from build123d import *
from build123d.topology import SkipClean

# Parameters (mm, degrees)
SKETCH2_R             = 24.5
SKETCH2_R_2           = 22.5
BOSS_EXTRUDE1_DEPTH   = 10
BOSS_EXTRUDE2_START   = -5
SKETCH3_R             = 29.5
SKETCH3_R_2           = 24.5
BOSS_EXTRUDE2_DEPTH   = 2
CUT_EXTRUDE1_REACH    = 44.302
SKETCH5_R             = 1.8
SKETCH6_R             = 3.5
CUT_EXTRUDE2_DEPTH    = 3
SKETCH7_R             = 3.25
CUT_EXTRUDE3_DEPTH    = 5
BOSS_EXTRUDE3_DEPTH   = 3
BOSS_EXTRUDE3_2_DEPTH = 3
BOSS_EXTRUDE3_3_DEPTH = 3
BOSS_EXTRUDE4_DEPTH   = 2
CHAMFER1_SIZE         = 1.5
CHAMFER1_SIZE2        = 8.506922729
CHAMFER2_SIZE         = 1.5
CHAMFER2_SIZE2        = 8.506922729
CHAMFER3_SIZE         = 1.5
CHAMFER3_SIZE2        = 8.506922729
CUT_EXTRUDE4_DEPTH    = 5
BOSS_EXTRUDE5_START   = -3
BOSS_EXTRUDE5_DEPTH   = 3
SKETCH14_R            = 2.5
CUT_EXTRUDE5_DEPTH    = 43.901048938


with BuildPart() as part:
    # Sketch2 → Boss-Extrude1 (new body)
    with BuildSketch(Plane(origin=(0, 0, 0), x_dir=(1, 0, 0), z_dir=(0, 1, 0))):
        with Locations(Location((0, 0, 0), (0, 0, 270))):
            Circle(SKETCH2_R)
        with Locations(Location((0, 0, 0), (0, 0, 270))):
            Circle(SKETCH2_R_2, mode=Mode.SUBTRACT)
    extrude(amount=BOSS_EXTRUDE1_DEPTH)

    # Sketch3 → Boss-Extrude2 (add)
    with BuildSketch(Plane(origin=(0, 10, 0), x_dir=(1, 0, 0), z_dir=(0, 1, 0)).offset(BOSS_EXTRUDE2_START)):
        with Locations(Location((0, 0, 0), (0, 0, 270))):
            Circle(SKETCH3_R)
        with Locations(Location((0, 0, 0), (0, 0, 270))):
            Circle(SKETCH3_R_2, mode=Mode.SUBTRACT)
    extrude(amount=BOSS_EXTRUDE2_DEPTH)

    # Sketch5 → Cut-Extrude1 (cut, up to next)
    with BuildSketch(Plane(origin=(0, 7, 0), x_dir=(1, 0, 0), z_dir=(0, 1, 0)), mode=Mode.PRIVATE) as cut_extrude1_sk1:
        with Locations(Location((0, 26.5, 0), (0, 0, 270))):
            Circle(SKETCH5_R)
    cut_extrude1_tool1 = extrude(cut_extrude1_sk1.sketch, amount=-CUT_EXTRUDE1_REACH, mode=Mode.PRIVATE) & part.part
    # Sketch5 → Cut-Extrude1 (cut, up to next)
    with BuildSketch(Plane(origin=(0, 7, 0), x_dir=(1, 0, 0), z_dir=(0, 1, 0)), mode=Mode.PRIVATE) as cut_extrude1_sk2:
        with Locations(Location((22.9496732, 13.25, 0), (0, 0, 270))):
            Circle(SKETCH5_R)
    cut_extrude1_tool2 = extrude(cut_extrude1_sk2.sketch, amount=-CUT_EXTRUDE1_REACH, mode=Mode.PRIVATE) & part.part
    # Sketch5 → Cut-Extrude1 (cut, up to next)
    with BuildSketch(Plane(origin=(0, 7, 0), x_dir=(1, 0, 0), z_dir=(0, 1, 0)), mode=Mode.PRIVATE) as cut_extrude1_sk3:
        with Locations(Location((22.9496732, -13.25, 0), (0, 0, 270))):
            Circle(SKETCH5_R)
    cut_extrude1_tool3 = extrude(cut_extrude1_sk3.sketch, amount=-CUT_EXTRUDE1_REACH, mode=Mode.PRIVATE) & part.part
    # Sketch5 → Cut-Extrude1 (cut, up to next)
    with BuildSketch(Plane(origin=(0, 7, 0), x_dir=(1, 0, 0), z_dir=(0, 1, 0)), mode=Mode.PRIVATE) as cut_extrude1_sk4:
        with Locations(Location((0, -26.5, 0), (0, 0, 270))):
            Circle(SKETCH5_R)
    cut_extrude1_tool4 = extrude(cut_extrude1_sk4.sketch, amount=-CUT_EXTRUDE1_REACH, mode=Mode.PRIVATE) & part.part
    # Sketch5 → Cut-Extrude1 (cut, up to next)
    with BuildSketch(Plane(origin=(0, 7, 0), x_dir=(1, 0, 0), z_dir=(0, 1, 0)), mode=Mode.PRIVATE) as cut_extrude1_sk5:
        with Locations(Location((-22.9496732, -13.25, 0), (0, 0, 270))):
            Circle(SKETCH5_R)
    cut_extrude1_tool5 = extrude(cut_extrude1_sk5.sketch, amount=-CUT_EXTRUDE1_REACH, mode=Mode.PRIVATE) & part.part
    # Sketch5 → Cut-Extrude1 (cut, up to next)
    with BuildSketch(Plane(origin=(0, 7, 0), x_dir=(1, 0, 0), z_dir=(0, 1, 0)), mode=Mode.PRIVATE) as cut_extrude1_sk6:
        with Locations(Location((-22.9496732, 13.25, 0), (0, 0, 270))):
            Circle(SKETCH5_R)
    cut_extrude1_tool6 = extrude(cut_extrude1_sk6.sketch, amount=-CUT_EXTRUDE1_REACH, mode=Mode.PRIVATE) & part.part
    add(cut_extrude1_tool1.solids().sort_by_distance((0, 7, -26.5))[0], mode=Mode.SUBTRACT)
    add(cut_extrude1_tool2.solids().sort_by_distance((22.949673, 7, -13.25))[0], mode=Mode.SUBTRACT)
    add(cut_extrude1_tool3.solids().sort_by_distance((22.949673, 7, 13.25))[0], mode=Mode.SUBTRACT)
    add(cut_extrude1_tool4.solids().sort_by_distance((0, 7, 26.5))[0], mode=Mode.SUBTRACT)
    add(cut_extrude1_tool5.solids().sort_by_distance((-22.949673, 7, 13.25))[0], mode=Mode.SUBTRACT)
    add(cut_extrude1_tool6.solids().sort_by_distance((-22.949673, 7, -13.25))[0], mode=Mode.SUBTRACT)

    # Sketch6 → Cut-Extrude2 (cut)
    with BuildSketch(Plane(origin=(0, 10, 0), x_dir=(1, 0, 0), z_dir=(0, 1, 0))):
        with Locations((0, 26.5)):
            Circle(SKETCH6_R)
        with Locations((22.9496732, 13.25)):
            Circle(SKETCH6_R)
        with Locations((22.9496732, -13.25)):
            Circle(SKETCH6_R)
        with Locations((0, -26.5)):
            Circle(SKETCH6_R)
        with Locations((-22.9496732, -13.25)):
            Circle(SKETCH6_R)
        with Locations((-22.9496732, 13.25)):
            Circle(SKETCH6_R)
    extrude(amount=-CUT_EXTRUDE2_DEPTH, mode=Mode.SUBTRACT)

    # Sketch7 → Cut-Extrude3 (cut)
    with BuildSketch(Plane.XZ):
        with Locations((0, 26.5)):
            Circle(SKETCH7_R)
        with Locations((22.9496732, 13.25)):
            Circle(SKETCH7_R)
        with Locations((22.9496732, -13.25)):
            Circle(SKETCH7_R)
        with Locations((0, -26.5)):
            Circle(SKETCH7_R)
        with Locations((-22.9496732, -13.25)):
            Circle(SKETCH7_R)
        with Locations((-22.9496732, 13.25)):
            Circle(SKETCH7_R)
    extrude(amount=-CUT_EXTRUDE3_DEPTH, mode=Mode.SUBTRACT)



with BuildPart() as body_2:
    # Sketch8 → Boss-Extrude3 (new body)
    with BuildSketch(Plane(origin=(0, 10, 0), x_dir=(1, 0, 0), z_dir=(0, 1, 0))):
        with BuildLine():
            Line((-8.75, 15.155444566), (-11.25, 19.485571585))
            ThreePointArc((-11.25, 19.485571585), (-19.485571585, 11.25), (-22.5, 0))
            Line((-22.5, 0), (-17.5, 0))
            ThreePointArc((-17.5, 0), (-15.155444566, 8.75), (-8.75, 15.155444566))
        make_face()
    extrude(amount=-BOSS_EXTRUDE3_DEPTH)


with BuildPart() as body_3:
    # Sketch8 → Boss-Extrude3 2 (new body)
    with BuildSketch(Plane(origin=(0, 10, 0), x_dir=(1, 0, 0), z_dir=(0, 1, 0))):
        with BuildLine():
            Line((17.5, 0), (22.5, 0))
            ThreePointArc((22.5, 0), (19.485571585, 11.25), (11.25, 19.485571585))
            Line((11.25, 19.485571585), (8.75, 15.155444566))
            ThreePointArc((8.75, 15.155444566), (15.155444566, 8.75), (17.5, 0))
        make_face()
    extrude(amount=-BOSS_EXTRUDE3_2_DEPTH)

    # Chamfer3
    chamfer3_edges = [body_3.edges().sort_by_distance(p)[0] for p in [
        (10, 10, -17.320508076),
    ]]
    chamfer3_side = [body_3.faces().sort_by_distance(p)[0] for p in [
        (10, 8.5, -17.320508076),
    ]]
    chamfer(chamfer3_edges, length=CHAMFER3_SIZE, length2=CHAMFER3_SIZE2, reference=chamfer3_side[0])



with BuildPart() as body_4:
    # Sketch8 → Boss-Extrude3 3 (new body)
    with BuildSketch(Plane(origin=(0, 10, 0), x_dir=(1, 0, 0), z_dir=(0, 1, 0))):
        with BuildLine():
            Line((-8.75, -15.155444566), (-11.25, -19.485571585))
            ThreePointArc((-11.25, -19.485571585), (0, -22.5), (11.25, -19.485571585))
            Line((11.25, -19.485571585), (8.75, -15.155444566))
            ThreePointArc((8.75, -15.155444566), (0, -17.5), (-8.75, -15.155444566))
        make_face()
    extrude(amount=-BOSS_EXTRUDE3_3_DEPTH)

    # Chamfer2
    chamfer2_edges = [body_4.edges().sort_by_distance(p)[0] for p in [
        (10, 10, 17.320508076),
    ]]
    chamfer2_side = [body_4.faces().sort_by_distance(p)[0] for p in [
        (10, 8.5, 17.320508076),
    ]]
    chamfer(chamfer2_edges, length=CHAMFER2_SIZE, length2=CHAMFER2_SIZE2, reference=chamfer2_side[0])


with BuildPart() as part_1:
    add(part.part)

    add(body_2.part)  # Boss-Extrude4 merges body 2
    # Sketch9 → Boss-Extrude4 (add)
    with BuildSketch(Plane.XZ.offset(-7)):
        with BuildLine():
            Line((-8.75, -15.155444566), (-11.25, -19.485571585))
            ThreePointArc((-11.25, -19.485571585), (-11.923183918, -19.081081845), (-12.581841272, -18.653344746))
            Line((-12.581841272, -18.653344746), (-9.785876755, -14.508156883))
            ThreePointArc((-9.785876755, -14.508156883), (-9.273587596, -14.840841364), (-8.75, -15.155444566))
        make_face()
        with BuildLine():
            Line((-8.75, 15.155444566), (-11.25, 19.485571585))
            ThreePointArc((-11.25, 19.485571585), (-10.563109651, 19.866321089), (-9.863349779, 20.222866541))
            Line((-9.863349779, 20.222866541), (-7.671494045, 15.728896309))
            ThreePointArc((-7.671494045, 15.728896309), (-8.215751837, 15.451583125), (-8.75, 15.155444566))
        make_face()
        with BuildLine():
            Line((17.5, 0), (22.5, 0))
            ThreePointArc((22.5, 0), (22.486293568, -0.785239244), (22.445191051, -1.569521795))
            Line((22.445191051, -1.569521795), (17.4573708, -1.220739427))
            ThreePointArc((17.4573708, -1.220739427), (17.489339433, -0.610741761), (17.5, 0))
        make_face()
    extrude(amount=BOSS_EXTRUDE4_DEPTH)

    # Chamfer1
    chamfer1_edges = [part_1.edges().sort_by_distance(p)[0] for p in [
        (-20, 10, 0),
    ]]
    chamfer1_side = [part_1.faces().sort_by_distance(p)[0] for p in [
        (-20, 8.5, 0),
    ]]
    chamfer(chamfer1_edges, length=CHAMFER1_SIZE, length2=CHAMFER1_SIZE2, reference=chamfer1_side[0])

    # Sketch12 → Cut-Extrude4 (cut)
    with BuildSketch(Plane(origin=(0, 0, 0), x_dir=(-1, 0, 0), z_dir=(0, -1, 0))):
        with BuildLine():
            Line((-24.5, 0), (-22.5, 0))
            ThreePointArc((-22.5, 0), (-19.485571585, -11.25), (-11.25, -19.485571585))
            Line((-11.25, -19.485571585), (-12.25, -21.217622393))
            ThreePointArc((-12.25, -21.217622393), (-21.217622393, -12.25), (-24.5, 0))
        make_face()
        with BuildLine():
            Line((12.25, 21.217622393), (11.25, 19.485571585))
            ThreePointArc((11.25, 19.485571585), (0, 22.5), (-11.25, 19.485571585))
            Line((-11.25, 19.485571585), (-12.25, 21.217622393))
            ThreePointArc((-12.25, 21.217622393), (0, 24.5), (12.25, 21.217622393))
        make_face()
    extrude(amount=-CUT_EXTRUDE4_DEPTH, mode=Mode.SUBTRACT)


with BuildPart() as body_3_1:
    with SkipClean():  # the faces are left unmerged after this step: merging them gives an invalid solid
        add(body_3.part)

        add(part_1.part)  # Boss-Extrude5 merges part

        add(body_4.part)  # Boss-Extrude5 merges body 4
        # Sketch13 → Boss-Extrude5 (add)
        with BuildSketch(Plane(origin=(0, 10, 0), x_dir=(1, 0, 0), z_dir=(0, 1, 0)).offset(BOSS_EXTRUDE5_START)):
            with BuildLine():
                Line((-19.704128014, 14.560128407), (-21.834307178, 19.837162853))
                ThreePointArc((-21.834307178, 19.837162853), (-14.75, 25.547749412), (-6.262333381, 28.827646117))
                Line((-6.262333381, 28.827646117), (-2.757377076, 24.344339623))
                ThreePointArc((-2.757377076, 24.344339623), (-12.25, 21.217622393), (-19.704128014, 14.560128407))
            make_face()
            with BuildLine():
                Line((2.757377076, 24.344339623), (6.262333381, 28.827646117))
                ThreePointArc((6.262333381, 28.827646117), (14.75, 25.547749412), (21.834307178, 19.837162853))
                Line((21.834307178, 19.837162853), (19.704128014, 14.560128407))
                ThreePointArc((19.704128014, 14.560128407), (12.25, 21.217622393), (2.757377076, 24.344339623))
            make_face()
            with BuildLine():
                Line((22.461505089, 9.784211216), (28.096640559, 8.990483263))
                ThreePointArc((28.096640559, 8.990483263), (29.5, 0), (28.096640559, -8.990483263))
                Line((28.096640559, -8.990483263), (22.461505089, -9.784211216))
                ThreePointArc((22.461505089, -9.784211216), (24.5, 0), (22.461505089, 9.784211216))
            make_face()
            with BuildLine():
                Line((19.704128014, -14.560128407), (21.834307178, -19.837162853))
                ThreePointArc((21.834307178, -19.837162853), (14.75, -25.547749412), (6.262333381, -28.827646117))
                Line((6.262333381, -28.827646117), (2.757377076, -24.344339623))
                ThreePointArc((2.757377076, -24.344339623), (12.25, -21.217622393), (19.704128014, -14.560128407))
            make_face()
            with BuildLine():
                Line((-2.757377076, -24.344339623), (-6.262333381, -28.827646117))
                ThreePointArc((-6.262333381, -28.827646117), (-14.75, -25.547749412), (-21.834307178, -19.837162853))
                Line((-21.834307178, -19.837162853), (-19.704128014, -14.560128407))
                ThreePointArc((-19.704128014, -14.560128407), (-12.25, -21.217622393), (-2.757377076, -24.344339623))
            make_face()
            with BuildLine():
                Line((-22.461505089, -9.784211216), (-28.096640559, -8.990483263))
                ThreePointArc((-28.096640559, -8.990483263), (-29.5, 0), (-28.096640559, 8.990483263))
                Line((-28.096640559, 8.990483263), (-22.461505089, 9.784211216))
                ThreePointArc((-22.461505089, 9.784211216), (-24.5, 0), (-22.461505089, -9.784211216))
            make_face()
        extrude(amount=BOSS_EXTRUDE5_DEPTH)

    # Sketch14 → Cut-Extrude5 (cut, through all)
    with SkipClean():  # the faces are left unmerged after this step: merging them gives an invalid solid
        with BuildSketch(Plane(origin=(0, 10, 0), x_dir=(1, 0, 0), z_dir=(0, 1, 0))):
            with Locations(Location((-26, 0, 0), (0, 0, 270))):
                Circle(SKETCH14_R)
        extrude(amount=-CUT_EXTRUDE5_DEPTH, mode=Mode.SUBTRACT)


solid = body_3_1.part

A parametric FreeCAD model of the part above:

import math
import FreeCAD as App
import Part
import Sketcher
Q = App.Units.Quantity


def edges_at(feature, points):
    """Names of the edges that pass closest to the given points."""
    edges = feature.Shape.Edges
    near = lambda p: min(range(len(edges)), key=lambda i: edges[i].distToShape(Part.Vertex(*p))[0])
    return sorted({f"Edge{near(p) + 1}" for p in points})

doc = App.newDocument("Part")
body = doc.addObject("PartDesign::Body", "Body")

# Sketch on XZ plane
sketch1 = body.newObject("Sketcher::SketchObject", "Sketch")
sketch1.AttachmentSupport = (doc.getObject("XZ_Plane"), [""])
sketch1.MapMode = "FlatFace"
sketch1.addGeometry([
    Part.Circle(App.Vector(0, 0, 0), App.Vector(0, 0, 1), 24),
    Part.Circle(App.Vector(0, 0, 0), App.Vector(0, 0, 1), 22),
], False)
sketch1.addConstraint([
    Sketcher.Constraint("Coincident", 0, 3, -1, 1),
    Sketcher.Constraint("Coincident", 1, 3, -1, 1),
    Sketcher.Constraint("Diameter", 0, Q("49 mm")),
    Sketcher.Constraint("Diameter", 1, Q("45 mm")),
])
pad1 = body.newObject("PartDesign::Pad", "Pad")
pad1.Profile = sketch1
pad1.Length = 10
pad1.Reversed = True

# Sketch on XZ plane
sketch2 = body.newObject("Sketcher::SketchObject", "Sketch001")
sketch2.AttachmentSupport = (doc.getObject("XZ_Plane"), [""])
sketch2.MapMode = "FlatFace"
sketch2.AttachmentOffset = App.Placement(App.Vector(0, 0, -5), App.Rotation())
sketch2.addGeometry([
    Part.Circle(App.Vector(0, 0, 0), App.Vector(0, 0, 1), 30),
    Part.Circle(App.Vector(0, 0, 0), App.Vector(0, 0, 1), 24),
], False)
sketch2.addConstraint([
    Sketcher.Constraint("Coincident", 0, 3, -1, 1),
    Sketcher.Constraint("Coincident", 1, 3, -1, 1),
    Sketcher.Constraint("Diameter", 0, Q("59 mm")),
    Sketcher.Constraint("Diameter", 1, Q("49 mm")),
])
pad2 = body.newObject("PartDesign::Pad", "Pad001")
pad2.Profile = sketch2
pad2.Length = 2
pad2.Reversed = True

# Sketch on XZ plane
sketch3 = body.newObject("Sketcher::SketchObject", "Sketch002")
sketch3.AttachmentSupport = (doc.getObject("XZ_Plane"), [""])
sketch3.MapMode = "FlatFace"
sketch3.AttachmentOffset = App.Placement(App.Vector(0, 0, -7), App.Rotation())
sketch3.addGeometry(Part.Circle(App.Vector(0, -26.5, 0), App.Vector(0, 0, 1), 1.8), False)
sketch3.addConstraint([
    Sketcher.Constraint("PointOnObject", 0, 3, -2),
    Sketcher.Constraint("Diameter", 0, Q("3.6 mm")),
    Sketcher.Constraint("DistanceY", 0, 3, -1, 1, Q("26.5 mm")),
])
pocket1 = body.newObject("PartDesign::Pocket", "Pocket")
pocket1.Profile = sketch3
pocket1.Type = "UpToFirst"
pocket1.Reversed = True

# Sketch on XZ plane
sketch4 = body.newObject("Sketcher::SketchObject", "Sketch003")
sketch4.AttachmentSupport = (doc.getObject("XZ_Plane"), [""])
sketch4.MapMode = "FlatFace"
sketch4.AttachmentOffset = App.Placement(App.Vector(0, 0, -7), App.Rotation())
sketch4.addGeometry(Part.Circle(App.Vector(22.9, -13.2, 0), App.Vector(0, 0, 1), 1.8), False)
sketch4.addConstraint([
    Sketcher.Constraint("Diameter", 0, Q("3.6 mm")),
    Sketcher.Constraint("DistanceY", 0, 3, -1, 1, Q("13.25 mm")),
    Sketcher.Constraint("DistanceX", -1, 1, 0, 3, Q("22.949673 mm")),
])
pocket2 = body.newObject("PartDesign::Pocket", "Pocket001")
pocket2.Profile = sketch4
pocket2.Type = "UpToFirst"
pocket2.Reversed = True

# Sketch on XZ plane
sketch5 = body.newObject("Sketcher::SketchObject", "Sketch004")
sketch5.AttachmentSupport = (doc.getObject("XZ_Plane"), [""])
sketch5.MapMode = "FlatFace"
sketch5.AttachmentOffset = App.Placement(App.Vector(0, 0, -7), App.Rotation())
sketch5.addGeometry(Part.Circle(App.Vector(22.9, 13.2, 0), App.Vector(0, 0, 1), 1.8), False)
sketch5.addConstraint([
    Sketcher.Constraint("Diameter", 0, Q("3.6 mm")),
    Sketcher.Constraint("DistanceY", -1, 1, 0, 3, Q("13.25 mm")),
    Sketcher.Constraint("DistanceX", -1, 1, 0, 3, Q("22.949673 mm")),
])
pocket3 = body.newObject("PartDesign::Pocket", "Pocket002")
pocket3.Profile = sketch5
pocket3.Type = "UpToFirst"
pocket3.Reversed = True

# Sketch on XZ plane
sketch6 = body.newObject("Sketcher::SketchObject", "Sketch005")
sketch6.AttachmentSupport = (doc.getObject("XZ_Plane"), [""])
sketch6.MapMode = "FlatFace"
sketch6.AttachmentOffset = App.Placement(App.Vector(0, 0, -7), App.Rotation())
sketch6.addGeometry(Part.Circle(App.Vector(0, 26.5, 0), App.Vector(0, 0, 1), 1.8), False)
sketch6.addConstraint([
    Sketcher.Constraint("PointOnObject", 0, 3, -2),
    Sketcher.Constraint("Diameter", 0, Q("3.6 mm")),
    Sketcher.Constraint("DistanceY", -1, 1, 0, 3, Q("26.5 mm")),
])
pocket4 = body.newObject("PartDesign::Pocket", "Pocket003")
pocket4.Profile = sketch6
pocket4.Type = "UpToFirst"
pocket4.Reversed = True

# Sketch on XZ plane
sketch7 = body.newObject("Sketcher::SketchObject", "Sketch006")
sketch7.AttachmentSupport = (doc.getObject("XZ_Plane"), [""])
sketch7.MapMode = "FlatFace"
sketch7.AttachmentOffset = App.Placement(App.Vector(0, 0, -7), App.Rotation())
sketch7.addGeometry(Part.Circle(App.Vector(-22.9, 13.2, 0), App.Vector(0, 0, 1), 1.8), False)
sketch7.addConstraint([
    Sketcher.Constraint("Diameter", 0, Q("3.6 mm")),
    Sketcher.Constraint("DistanceY", -1, 1, 0, 3, Q("13.25 mm")),
    Sketcher.Constraint("DistanceX", 0, 3, -1, 1, Q("22.949673 mm")),
])
pocket5 = body.newObject("PartDesign::Pocket", "Pocket004")
pocket5.Profile = sketch7
pocket5.Type = "UpToFirst"
pocket5.Reversed = True

# Sketch on XZ plane
sketch8 = body.newObject("Sketcher::SketchObject", "Sketch007")
sketch8.AttachmentSupport = (doc.getObject("XZ_Plane"), [""])
sketch8.MapMode = "FlatFace"
sketch8.AttachmentOffset = App.Placement(App.Vector(0, 0, -7), App.Rotation())
sketch8.addGeometry(Part.Circle(App.Vector(-22.9, -13.2, 0), App.Vector(0, 0, 1), 1.8), False)
sketch8.addConstraint([
    Sketcher.Constraint("Diameter", 0, Q("3.6 mm")),
    Sketcher.Constraint("DistanceY", 0, 3, -1, 1, Q("13.25 mm")),
    Sketcher.Constraint("DistanceX", 0, 3, -1, 1, Q("22.949673 mm")),
])
pocket6 = body.newObject("PartDesign::Pocket", "Pocket005")
pocket6.Profile = sketch8
pocket6.Type = "UpToFirst"
pocket6.Reversed = True

# Sketch on XZ plane
sketch9 = body.newObject("Sketcher::SketchObject", "Sketch008")
sketch9.AttachmentSupport = (doc.getObject("XZ_Plane"), [""])
sketch9.MapMode = "FlatFace"
sketch9.AttachmentOffset = App.Placement(App.Vector(0, 0, -10), App.Rotation())
sketch9.addGeometry([
    Part.Circle(App.Vector(0, -26.5, 0), App.Vector(0, 0, 1), 3.5),  # 0
    Part.Circle(App.Vector(22.9, -13.2, 0), App.Vector(0, 0, 1), 3.5),  # 1
    Part.Circle(App.Vector(22.9, 13.2, 0), App.Vector(0, 0, 1), 3.5),  # 2
    Part.Circle(App.Vector(0, 26.5, 0), App.Vector(0, 0, 1), 3.5),  # 3
    Part.Circle(App.Vector(-22.9, 13.2, 0), App.Vector(0, 0, 1), 3.5),  # 4
    Part.Circle(App.Vector(-22.9, -13.2, 0), App.Vector(0, 0, 1), 3.5),  # 5
], False)
sketch9.addConstraint([
    Sketcher.Constraint("Equal", 0, 1),
    Sketcher.Constraint("Equal", 1, 2),
    Sketcher.Constraint("Equal", 2, 3),
    Sketcher.Constraint("Equal", 3, 4),
    Sketcher.Constraint("Equal", 4, 5),
    Sketcher.Constraint("Symmetric", 0, 3, 3, 3, -1, 1),
    Sketcher.Constraint("Symmetric", 1, 3, 4, 3, -1, 1),
    Sketcher.Constraint("Symmetric", 2, 3, 5, 3, -1, 1),
    Sketcher.Constraint("Symmetric", 2, 3, 4, 3, -2),
    Sketcher.Constraint("PointOnObject", 0, 3, -2),
    Sketcher.Constraint("Diameter", 0, Q("7 mm")),
    Sketcher.Constraint("DistanceY", 0, 3, 3, 3, Q("53 mm")),
    Sketcher.Constraint("DistanceY", 1, 3, 2, 3, Q("26.5 mm")),
    Sketcher.Constraint("DistanceX", -1, 1, 1, 3, Q("22.949673 mm")),
])
pocket7 = body.newObject("PartDesign::Pocket", "Pocket006")
pocket7.Profile = sketch9
pocket7.Length = 3
pocket7.Reversed = True

# Sketch on XZ plane
sketch10 = body.newObject("Sketcher::SketchObject", "Sketch009")
sketch10.AttachmentSupport = (doc.getObject("XZ_Plane"), [""])
sketch10.MapMode = "FlatFace"
sketch10.addGeometry([
    Part.Circle(App.Vector(0, 26.5, 0), App.Vector(0, 0, 1), 3.2),  # 0
    Part.Circle(App.Vector(22.9, 13.2, 0), App.Vector(0, 0, 1), 3.2),  # 1
    Part.Circle(App.Vector(22.9, -13.2, 0), App.Vector(0, 0, 1), 3.2),  # 2
    Part.Circle(App.Vector(0, -26.5, 0), App.Vector(0, 0, 1), 3.2),  # 3
    Part.Circle(App.Vector(-22.9, -13.2, 0), App.Vector(0, 0, 1), 3.2),  # 4
    Part.Circle(App.Vector(-22.9, 13.2, 0), App.Vector(0, 0, 1), 3.2),  # 5
], False)
sketch10.addConstraint([
    Sketcher.Constraint("Equal", 0, 1),
    Sketcher.Constraint("Equal", 1, 2),
    Sketcher.Constraint("Equal", 2, 3),
    Sketcher.Constraint("Equal", 3, 4),
    Sketcher.Constraint("Equal", 4, 5),
    Sketcher.Constraint("Symmetric", 0, 3, 3, 3, -1, 1),
    Sketcher.Constraint("Symmetric", 1, 3, 4, 3, -1, 1),
    Sketcher.Constraint("Symmetric", 2, 3, 5, 3, -1, 1),
    Sketcher.Constraint("Symmetric", 2, 3, 4, 3, -2),
    Sketcher.Constraint("PointOnObject", 0, 3, -2),
    Sketcher.Constraint("Diameter", 0, Q("6.5 mm")),
    Sketcher.Constraint("DistanceY", 3, 3, 0, 3, Q("53 mm")),
    Sketcher.Constraint("DistanceY", 2, 3, 1, 3, Q("26.5 mm")),
    Sketcher.Constraint("DistanceX", -1, 1, 1, 3, Q("22.949673 mm")),
])
pocket8 = body.newObject("PartDesign::Pocket", "Pocket007")
pocket8.Profile = sketch10
pocket8.Length = 5
body2 = doc.addObject("PartDesign::Body", "Body001")

# Sketch on XZ plane
sketch11 = body2.newObject("Sketcher::SketchObject", "Sketch010")
sketch11.AttachmentSupport = (doc.getObject("XZ_Plane001"), [""])
sketch11.MapMode = "FlatFace"
sketch11.AttachmentOffset = App.Placement(App.Vector(0, 0, -10), App.Rotation())
sketch11.addGeometry([
    Part.LineSegment(App.Vector(-9, -15, 0), App.Vector(-11, -19, 0)),
    Part.ArcOfCircle(Part.Circle(App.Vector(0, 0, 0), App.Vector(0, 0, 1), 22), math.radians(180), math.radians(240)),
    Part.LineSegment(App.Vector(-22, 0, 0), App.Vector(-18, 0, 0)),
    Part.ArcOfCircle(Part.Circle(App.Vector(0, 0, 0), App.Vector(0, 0, 1), 18), math.radians(-180), math.radians(-120)),
], False)
sketch11.addConstraint([
    Sketcher.Constraint("Coincident", 0, 2, 1, 2),
    Sketcher.Constraint("Coincident", 1, 1, 2, 1),
    Sketcher.Constraint("Coincident", 2, 2, 3, 1),
    Sketcher.Constraint("Coincident", 3, 2, 0, 1),
    Sketcher.Constraint("Horizontal", 2),
    Sketcher.Constraint("Coincident", 1, 3, -1, 1),
    Sketcher.Constraint("Coincident", 3, 3, -1, 1),
    Sketcher.Constraint("PointOnObject", 1, 1, -1),
    Sketcher.Constraint("Radius", 1, Q("22.5 mm")),
    Sketcher.Constraint("Radius", 3, Q("17.5 mm")),
    Sketcher.Constraint("Angle", 0, Q("-120 deg")),
    Sketcher.Constraint("DistanceX", 0, 2, -1, 1, Q("11.25 mm")),
])
pad3 = body2.newObject("PartDesign::Pad", "Pad002")
pad3.Profile = sketch11
pad3.Length = 3
body3 = doc.addObject("PartDesign::Body", "Body002")

# Sketch on XZ plane
sketch12 = body3.newObject("Sketcher::SketchObject", "Sketch011")
sketch12.AttachmentSupport = (doc.getObject("XZ_Plane002"), [""])
sketch12.MapMode = "FlatFace"
sketch12.AttachmentOffset = App.Placement(App.Vector(0, 0, -10), App.Rotation())
sketch12.addGeometry([
    Part.LineSegment(App.Vector(18, 0, 0), App.Vector(22, 0, 0)),
    Part.ArcOfCircle(Part.Circle(App.Vector(0, 0, 0), App.Vector(0, 0, 1), 22), math.radians(-60), math.radians(0)),
    Part.LineSegment(App.Vector(11, -19, 0), App.Vector(9, -15, 0)),
    Part.ArcOfCircle(Part.Circle(App.Vector(0, 0, 0), App.Vector(0, 0, 1), 18), math.radians(-60), math.radians(0)),
], False)
sketch12.addConstraint([
    Sketcher.Constraint("Coincident", 0, 2, 1, 2),
    Sketcher.Constraint("Coincident", 1, 1, 2, 1),
    Sketcher.Constraint("Coincident", 2, 2, 3, 1),
    Sketcher.Constraint("Coincident", 3, 2, 0, 1),
    Sketcher.Constraint("Horizontal", 0),
    Sketcher.Constraint("Coincident", 1, 3, -1, 1),
    Sketcher.Constraint("Coincident", 3, 3, -1, 1),
    Sketcher.Constraint("PointOnObject", 0, 2, -1),
    Sketcher.Constraint("Radius", 1, Q("22.5 mm")),
    Sketcher.Constraint("Radius", 3, Q("17.5 mm")),
    Sketcher.Constraint("Angle", 2, Q("120 deg")),
    Sketcher.Constraint("DistanceX", -1, 1, 1, 1, Q("11.25 mm")),
])
pad4 = body3.newObject("PartDesign::Pad", "Pad003")
pad4.Profile = sketch12
pad4.Length = 3
doc.recompute()

chamfer = body3.newObject("PartDesign::Chamfer", "Chamfer")
chamfer.Base = (pad4, edges_at(pad4, [(10, 10, -17.321)]))
chamfer.ChamferType = "Two distances"
chamfer.Size = 1.5
chamfer.Size2 = 8.506923
body4 = doc.addObject("PartDesign::Body", "Body003")

# Sketch on XZ plane
sketch13 = body4.newObject("Sketcher::SketchObject", "Sketch012")
sketch13.AttachmentSupport = (doc.getObject("XZ_Plane003"), [""])
sketch13.MapMode = "FlatFace"
sketch13.AttachmentOffset = App.Placement(App.Vector(0, 0, -10), App.Rotation())
sketch13.addGeometry([
    Part.LineSegment(App.Vector(-9, 15, 0), App.Vector(-11, 19, 0)),
    Part.ArcOfCircle(Part.Circle(App.Vector(0, 0, 0), App.Vector(0, 0, 1), 22), math.radians(60), math.radians(120)),
    Part.LineSegment(App.Vector(11, 19, 0), App.Vector(9, 15, 0)),
    Part.ArcOfCircle(Part.Circle(App.Vector(0, 0, 0), App.Vector(0, 0, 1), 17), math.radians(60), math.radians(120)),
], False)
sketch13.addConstraint([
    Sketcher.Constraint("Coincident", 0, 2, 1, 2),
    Sketcher.Constraint("Coincident", 1, 1, 2, 1),
    Sketcher.Constraint("Coincident", 2, 2, 3, 1),
    Sketcher.Constraint("Coincident", 3, 2, 0, 1),
    Sketcher.Constraint("Coincident", 1, 3, -1, 1),
    Sketcher.Constraint("Coincident", 3, 3, -1, 1),
    Sketcher.Constraint("Horizontal", 0, 2, 1, 1),
    Sketcher.Constraint("Horizontal", 2, 2, 3, 2),
    Sketcher.Constraint("Radius", 1, Q("22.5 mm")),
    Sketcher.Constraint("Radius", 3, Q("17.5 mm")),
    Sketcher.Constraint("Angle", 0, Q("120 deg")),
    Sketcher.Constraint("DistanceX", 0, 2, 2, 2, Q("20 mm")),
])
pad5 = body4.newObject("PartDesign::Pad", "Pad004")
pad5.Profile = sketch13
pad5.Length = 3
doc.recompute()

chamfer2 = body4.newObject("PartDesign::Chamfer", "Chamfer001")
chamfer2.Base = (pad5, edges_at(pad5, [(10, 10, 17.321)]))
chamfer2.ChamferType = "Two distances"
chamfer2.Size = 1.5
chamfer2.Size2 = 8.506923
doc.recompute()

boolean = body.newObject("PartDesign::Boolean", "Boolean")
boolean.Type = "Fuse"
boolean.addObjects([body2])

# Sketch on XZ plane
sketch14 = body.newObject("Sketcher::SketchObject", "Sketch013")
sketch14.AttachmentSupport = (doc.getObject("XZ_Plane"), [""])
sketch14.MapMode = "FlatFace"
sketch14.AttachmentOffset = App.Placement(App.Vector(0, 0, -7), App.Rotation())
sketch14.addGeometry([
    Part.LineSegment(App.Vector(-11.25, -19.485572, 0), App.Vector(-8.75, -15.155445, 0)),  # 0
    Part.ArcOfCircle(Part.Circle(App.Vector(0.000018, 0.000028, 0), App.Vector(0, 0, 1), 17.500033), math.radians(-124), math.radians(-120.000004)),  # 1
    Part.LineSegment(App.Vector(-9.785877, -14.508157, 0), App.Vector(-12.581841, -18.653345, 0)),  # 2
    Part.ArcOfCircle(Part.Circle(App.Vector(0.000017, 0.000027, 0), App.Vector(0, 0, 1), 22.500032), math.radians(-124), math.radians(-120.000003)),  # 3
    Part.LineSegment(App.Vector(-11.25, 19.485572, 0), App.Vector(-8.75, 15.155445, 0)),  # 4
    Part.ArcOfCircle(Part.Circle(App.Vector(0.000015, -0.000028, 0), App.Vector(0, 0, 1), 17.500031), math.radians(116), math.radians(119.999996)),  # 5
    Part.LineSegment(App.Vector(-7.671494, 15.728896, 0), App.Vector(-9.86335, 20.222867, 0)),  # 6
    Part.ArcOfCircle(Part.Circle(App.Vector(0.000015, -0.000029, 0), App.Vector(0, 0, 1), 22.500032), math.radians(116), math.radians(119.999997)),  # 7
    Part.LineSegment(App.Vector(22.5, 0, 0), App.Vector(17.5, 0, 0)),  # 8
    Part.ArcOfCircle(Part.Circle(App.Vector(-0.000033, 0.000001, 0), App.Vector(0, 0, 1), 17.500033), math.radians(-4), math.radians(-0.000004)),  # 9
    Part.LineSegment(App.Vector(17.457371, -1.220739, 0), App.Vector(22.445191, -1.569522, 0)),  # 10
    Part.ArcOfCircle(Part.Circle(App.Vector(-0.000033, 0.000001, 0), App.Vector(0, 0, 1), 22.500033), math.radians(-4), math.radians(-0.000003)),  # 11
], False)
sketch14.addConstraint([
    Sketcher.Constraint("Coincident", 0, 2, 1, 2),
    Sketcher.Constraint("Coincident", 1, 1, 2, 1),
    Sketcher.Constraint("Coincident", 2, 2, 3, 1),
    Sketcher.Constraint("Coincident", 3, 2, 0, 1),
    Sketcher.Constraint("Coincident", 4, 2, 5, 2),
    Sketcher.Constraint("Coincident", 5, 1, 6, 1),
    Sketcher.Constraint("Coincident", 6, 2, 7, 1),
    Sketcher.Constraint("Coincident", 7, 2, 4, 1),
    Sketcher.Constraint("Coincident", 8, 2, 9, 2),
    Sketcher.Constraint("Coincident", 9, 1, 10, 1),
    Sketcher.Constraint("Coincident", 10, 2, 11, 1),
    Sketcher.Constraint("Coincident", 11, 2, 8, 1),
    Sketcher.Constraint("Horizontal", 8),
    Sketcher.Constraint("Coincident", 3, 3, 1, 3),
    Sketcher.Constraint("Coincident", 7, 3, 5, 3),
    Sketcher.Constraint("Coincident", 11, 3, 9, 3),
    Sketcher.Constraint("Equal", 1, 5),
    Sketcher.Constraint("Equal", 3, 7),
    Sketcher.Constraint("Equal", 5, 9),
    Sketcher.Constraint("Equal", 7, 11),
    Sketcher.Constraint("Symmetric", 1, 3, 5, 3, -1),
    Sketcher.Constraint("PointOnObject", 9, 3, -1),
    Sketcher.Constraint("PointOnObject", 8, 2, -1),
    Sketcher.Constraint("Vertical", 0, 2, 4, 2),
    Sketcher.Constraint("Vertical", 3, 2, 7, 2),
    Sketcher.Constraint("DistanceX", 8, 2, 8, 1, Q("5 mm")),
    Sketcher.Constraint("Angle", 0, Q("60 deg")),
    Sketcher.Constraint("Angle", 2, Q("-124 deg")),
    Sketcher.Constraint("Angle", 6, Q("116 deg")),
    Sketcher.Constraint("Angle", 10, Q("-4 deg")),
    Sketcher.Constraint("DistanceX", -1, 1, 8, 2, Q("17.5 mm")),
    Sketcher.Constraint("DistanceX", 0, 2, -1, 1, Q("8.75 mm")),
    Sketcher.Constraint("Radius", 5, Q("17.500031 mm")),
    Sketcher.Constraint("DistanceY", 2, 2, 0, 2, Q("3.4979 mm")),
    Sketcher.Constraint("DistanceX", 2, 2, -1, 1, Q("12.581841 mm")),
    Sketcher.Constraint("DistanceY", 3, 2, -1, 1, Q("19.485572 mm")),
    Sketcher.Constraint("DistanceX", 6, 2, -1, 1, Q("9.86335 mm")),
    Sketcher.Constraint("DistanceX", -1, 1, 9, 1, Q("17.457371 mm")),
])
pad6 = body.newObject("PartDesign::Pad", "Pad005")
pad6.Profile = sketch14
pad6.Length = 2
doc.recompute()

chamfer3 = body.newObject("PartDesign::Chamfer", "Chamfer002")
chamfer3.Base = (pad6, edges_at(pad6, [(-20, 10, 0)]))
chamfer3.ChamferType = "Two distances"
chamfer3.Size = 1.5
chamfer3.Size2 = 8.506923
chamfer3.FlipDirection = True

# Sketch on XZ plane
sketch15 = body.newObject("Sketcher::SketchObject", "Sketch014")
sketch15.AttachmentSupport = (doc.getObject("XZ_Plane"), [""])
sketch15.MapMode = "FlatFace"
sketch15.addGeometry([
    Part.LineSegment(App.Vector(22.5, 0, 0), App.Vector(24.5, 0, 0)),  # 0
    Part.ArcOfCircle(Part.Circle(App.Vector(0, 0, 0), App.Vector(0, 0, 1), 24.5), math.radians(0), math.radians(60)),  # 1
    Part.LineSegment(App.Vector(12.2, 21.2, 0), App.Vector(11.2, 19.5, 0)),  # 2
    Part.ArcOfCircle(Part.Circle(App.Vector(0, 0, 0), App.Vector(0, 0, 1), 22.5), math.radians(0), math.radians(60)),  # 3
    Part.LineSegment(App.Vector(-11.2, -19.5, 0), App.Vector(-12.2, -21.2, 0)),  # 4
    Part.ArcOfCircle(Part.Circle(App.Vector(0, 0, 0), App.Vector(0, 0, 1), 24.5), math.radians(-120), math.radians(-60)),  # 5
    Part.LineSegment(App.Vector(12.2, -21.2, 0), App.Vector(11.2, -19.5, 0)),  # 6
    Part.ArcOfCircle(Part.Circle(App.Vector(0, 0, 0), App.Vector(0, 0, 1), 22.5), math.radians(-120), math.radians(-60)),  # 7
], False)
sketch15.addConstraint([
    Sketcher.Constraint("Coincident", 0, 2, 1, 1),
    Sketcher.Constraint("Coincident", 1, 2, 2, 1),
    Sketcher.Constraint("Coincident", 2, 2, 3, 2),
    Sketcher.Constraint("Coincident", 3, 1, 0, 1),
    Sketcher.Constraint("Coincident", 4, 2, 5, 1),
    Sketcher.Constraint("Coincident", 5, 2, 6, 1),
    Sketcher.Constraint("Coincident", 6, 2, 7, 2),
    Sketcher.Constraint("Coincident", 7, 1, 4, 1),
    Sketcher.Constraint("Horizontal", 0),
    Sketcher.Constraint("Coincident", 1, 3, -1, 1),
    Sketcher.Constraint("Coincident", 3, 3, -1, 1),
    Sketcher.Constraint("Coincident", 5, 3, -1, 1),
    Sketcher.Constraint("Coincident", 7, 3, -1, 1),
    Sketcher.Constraint("Equal", 1, 5),
    Sketcher.Constraint("Equal", 3, 7),
    Sketcher.Constraint("PointOnObject", 0, 2, -1),
    Sketcher.Constraint("Parallel", 2, 4),
    Sketcher.Constraint("Horizontal", 4, 2, 5, 2),
    Sketcher.Constraint("Horizontal", 6, 2, 7, 1),
    Sketcher.Constraint("Vertical", 1, 2, 5, 2),
    Sketcher.Constraint("Radius", 1, Q("24.5 mm")),
    Sketcher.Constraint("Radius", 3, Q("22.5 mm")),
    Sketcher.Constraint("Angle", 2, Q("-120 deg")),
    Sketcher.Constraint("DistanceX", 4, 2, 5, 2, Q("24.5 mm")),
])
pocket9 = body.newObject("PartDesign::Pocket", "Pocket008")
pocket9.Profile = sketch15
pocket9.Length = 5
doc.recompute()

boolean2 = body3.newObject("PartDesign::Boolean", "Boolean001")
boolean2.Type = "Fuse"
boolean2.addObjects([body])
doc.recompute()

boolean3 = body3.newObject("PartDesign::Boolean", "Boolean002")
boolean3.Type = "Fuse"
boolean3.addObjects([body4])

# Sketch on XZ plane
sketch16 = body3.newObject("Sketcher::SketchObject", "Sketch015")
sketch16.AttachmentSupport = (doc.getObject("XZ_Plane002"), [""])
sketch16.MapMode = "FlatFace"
sketch16.AttachmentOffset = App.Placement(App.Vector(0, 0, -7), App.Rotation())
sketch16.addGeometry([
    Part.LineSegment(App.Vector(-22, -20, 0), App.Vector(-20, -15, 0)),  # 0
    Part.ArcOfCircle(Part.Circle(App.Vector(0, 0, 0), App.Vector(0, 0, 1), 25), math.radians(-144), math.radians(-96)),  # 1
    Part.LineSegment(App.Vector(-3, -24, 0), App.Vector(-6, -29, 0)),  # 2
    Part.ArcOfCircle(Part.Circle(App.Vector(0, 0, 0), App.Vector(0, 0, 1), 29), math.radians(-138), math.radians(-102)),  # 3
    Part.LineSegment(App.Vector(6, -29, 0), App.Vector(3, -24, 0)),  # 4
    Part.ArcOfCircle(Part.Circle(App.Vector(0, 0, 0), App.Vector(0, 0, 1), 25), math.radians(-84), math.radians(-36)),  # 5
    Part.LineSegment(App.Vector(20, -15, 0), App.Vector(22, -20, 0)),  # 6
    Part.ArcOfCircle(Part.Circle(App.Vector(0, 0, 0), App.Vector(0, 0, 1), 29), math.radians(-78), math.radians(-42)),  # 7
    Part.LineSegment(App.Vector(28, -9, 0), App.Vector(22, -10, 0)),  # 8
    Part.ArcOfCircle(Part.Circle(App.Vector(0, 0, 0), App.Vector(0, 0, 1), 24), math.radians(-24), math.radians(24)),  # 9
    Part.LineSegment(App.Vector(22, 10, 0), App.Vector(28, 9, 0)),  # 10
    Part.ArcOfCircle(Part.Circle(App.Vector(0, 0, 0), App.Vector(0, 0, 1), 30), math.radians(-18), math.radians(18)),  # 11
    Part.LineSegment(App.Vector(22, 20, 0), App.Vector(20, 15, 0)),  # 12
    Part.ArcOfCircle(Part.Circle(App.Vector(0, 0, 0), App.Vector(0, 0, 1), 25), math.radians(36), math.radians(84)),  # 13
    Part.LineSegment(App.Vector(3, 24, 0), App.Vector(6, 29, 0)),  # 14
    Part.ArcOfCircle(Part.Circle(App.Vector(0, 0, 0), App.Vector(0, 0, 1), 29), math.radians(42), math.radians(78)),  # 15
    Part.LineSegment(App.Vector(-6, 29, 0), App.Vector(-3, 24, 0)),  # 16
    Part.ArcOfCircle(Part.Circle(App.Vector(0, 0, 0), App.Vector(0, 0, 1), 25), math.radians(96), math.radians(144)),  # 17
    Part.LineSegment(App.Vector(-20, 15, 0), App.Vector(-22, 20, 0)),  # 18
    Part.ArcOfCircle(Part.Circle(App.Vector(0, 0, 0), App.Vector(0, 0, 1), 29), math.radians(102), math.radians(138)),  # 19
    Part.LineSegment(App.Vector(-28, 9, 0), App.Vector(-22, 10, 0)),  # 20
    Part.ArcOfCircle(Part.Circle(App.Vector(0, 0, 0), App.Vector(0, 0, 1), 24), math.radians(156), math.radians(204)),  # 21
    Part.LineSegment(App.Vector(-22, -10, 0), App.Vector(-28, -9, 0)),  # 22
    Part.ArcOfCircle(Part.Circle(App.Vector(0, 0, 0), App.Vector(0, 0, 1), 30), math.radians(162), math.radians(198)),  # 23
], False)
sketch16.addConstraint([
    Sketcher.Constraint("Coincident", 0, 2, 1, 1),
    Sketcher.Constraint("Coincident", 1, 2, 2, 1),
    Sketcher.Constraint("Coincident", 2, 2, 3, 2),
    Sketcher.Constraint("Coincident", 3, 1, 0, 1),
    Sketcher.Constraint("Coincident", 4, 2, 5, 1),
    Sketcher.Constraint("Coincident", 5, 2, 6, 1),
    Sketcher.Constraint("Coincident", 6, 2, 7, 2),
    Sketcher.Constraint("Coincident", 7, 1, 4, 1),
    Sketcher.Constraint("Coincident", 8, 2, 9, 1),
    Sketcher.Constraint("Coincident", 9, 2, 10, 1),
    Sketcher.Constraint("Coincident", 10, 2, 11, 2),
    Sketcher.Constraint("Coincident", 11, 1, 8, 1),
    Sketcher.Constraint("Coincident", 12, 2, 13, 1),
    Sketcher.Constraint("Coincident", 13, 2, 14, 1),
    Sketcher.Constraint("Coincident", 14, 2, 15, 2),
    Sketcher.Constraint("Coincident", 15, 1, 12, 1),
    Sketcher.Constraint("Coincident", 16, 2, 17, 1),
    Sketcher.Constraint("Coincident", 17, 2, 18, 1),
    Sketcher.Constraint("Coincident", 18, 2, 19, 2),
    Sketcher.Constraint("Coincident", 19, 1, 16, 1),
    Sketcher.Constraint("Coincident", 20, 2, 21, 1),
    Sketcher.Constraint("Coincident", 21, 2, 22, 1),
    Sketcher.Constraint("Coincident", 22, 2, 23, 2),
    Sketcher.Constraint("Coincident", 23, 1, 20, 1),
    Sketcher.Constraint("Coincident", 1, 3, -1, 1),
    Sketcher.Constraint("Coincident", 3, 3, -1, 1),
    Sketcher.Constraint("Coincident", 5, 3, -1, 1),
    Sketcher.Constraint("Coincident", 7, 3, -1, 1),
    Sketcher.Constraint("Coincident", 9, 3, -1, 1),
    Sketcher.Constraint("Coincident", 11, 3, -1, 1),
    Sketcher.Constraint("Coincident", 13, 3, -1, 1),
    Sketcher.Constraint("Coincident", 15, 3, -1, 1),
    Sketcher.Constraint("Coincident", 17, 3, -1, 1),
    Sketcher.Constraint("Coincident", 19, 3, -1, 1),
    Sketcher.Constraint("Coincident", 21, 3, -1, 1),
    Sketcher.Constraint("Coincident", 23, 3, -1, 1),
    Sketcher.Constraint("Equal", 1, 5),
    Sketcher.Constraint("Equal", 3, 7),
    Sketcher.Constraint("Equal", 5, 9),
    Sketcher.Constraint("Equal", 7, 11),
    Sketcher.Constraint("Equal", 9, 13),
    Sketcher.Constraint("Equal", 11, 15),
    Sketcher.Constraint("Equal", 13, 17),
    Sketcher.Constraint("Equal", 15, 19),
    Sketcher.Constraint("Equal", 17, 21),
    Sketcher.Constraint("Equal", 19, 23),
    Sketcher.Constraint("Parallel", 0, 12),
    Sketcher.Constraint("Parallel", 2, 14),
    Sketcher.Constraint("Parallel", 4, 16),
    Sketcher.Constraint("Parallel", 6, 18),
    Sketcher.Constraint("Parallel", 8, 20),
    Sketcher.Constraint("Parallel", 10, 22),
    Sketcher.Constraint("Horizontal", 1, 2, 4, 2),
    Sketcher.Constraint("Horizontal", 0, 2, 5, 2),
    Sketcher.Constraint("Horizontal", 3, 1, 6, 2),
    Sketcher.Constraint("Horizontal", 2, 2, 7, 1),
    Sketcher.Constraint("Horizontal", 13, 2, 16, 2),
    Sketcher.Constraint("Horizontal", 12, 2, 17, 2),
    Sketcher.Constraint("Horizontal", 9, 2, 20, 2),
    Sketcher.Constraint("Horizontal", 8, 2, 21, 2),
    Sketcher.Constraint("Horizontal", 11, 1, 22, 2),
    Sketcher.Constraint("Vertical", 8, 2, 9, 2),
    Sketcher.Constraint("Vertical", 5, 2, 12, 2),
    Sketcher.Constraint("Vertical", 4, 2, 13, 2),
    Sketcher.Constraint("Equal", 0, 2),
    Sketcher.Constraint("Equal", 6, 8),
    Sketcher.Constraint("Radius", 1, Q("24.5 mm")),
    Sketcher.Constraint("Radius", 3, Q("29.5 mm")),
    Sketcher.Constraint("Distance", 0, Q("5.690761 mm")),
    Sketcher.Constraint("DistanceX", 0, 2, -1, 1, Q("19.704128 mm")),
    Sketcher.Constraint("DistanceY", 1, 2, -1, 1, Q("24.34434 mm")),
    Sketcher.Constraint("DistanceY", 8, 2, -1, 1, Q("9.784211 mm")),
])
pad7 = body3.newObject("PartDesign::Pad", "Pad006")
pad7.Profile = sketch16
pad7.Length = 3
pad7.Reversed = True

# Sketch on XZ plane
sketch17 = body3.newObject("Sketcher::SketchObject", "Sketch016")
sketch17.AttachmentSupport = (doc.getObject("XZ_Plane002"), [""])
sketch17.MapMode = "FlatFace"
sketch17.AttachmentOffset = App.Placement(App.Vector(0, 0, -10), App.Rotation())
sketch17.addGeometry(Part.Circle(App.Vector(-26, 0, 0), App.Vector(0, 0, 1), 2.5), False)
sketch17.addConstraint([
    Sketcher.Constraint("PointOnObject", 0, 3, -1),
    Sketcher.Constraint("Diameter", 0, Q("5 mm")),
    Sketcher.Constraint("DistanceX", 0, 3, -1, 1, Q("26 mm")),
])
pocket10 = body3.newObject("PartDesign::Pocket", "Pocket009")
pocket10.Profile = sketch17
pocket10.Type = "ThroughAll"
pocket10.Reversed = True

doc.recompute()
